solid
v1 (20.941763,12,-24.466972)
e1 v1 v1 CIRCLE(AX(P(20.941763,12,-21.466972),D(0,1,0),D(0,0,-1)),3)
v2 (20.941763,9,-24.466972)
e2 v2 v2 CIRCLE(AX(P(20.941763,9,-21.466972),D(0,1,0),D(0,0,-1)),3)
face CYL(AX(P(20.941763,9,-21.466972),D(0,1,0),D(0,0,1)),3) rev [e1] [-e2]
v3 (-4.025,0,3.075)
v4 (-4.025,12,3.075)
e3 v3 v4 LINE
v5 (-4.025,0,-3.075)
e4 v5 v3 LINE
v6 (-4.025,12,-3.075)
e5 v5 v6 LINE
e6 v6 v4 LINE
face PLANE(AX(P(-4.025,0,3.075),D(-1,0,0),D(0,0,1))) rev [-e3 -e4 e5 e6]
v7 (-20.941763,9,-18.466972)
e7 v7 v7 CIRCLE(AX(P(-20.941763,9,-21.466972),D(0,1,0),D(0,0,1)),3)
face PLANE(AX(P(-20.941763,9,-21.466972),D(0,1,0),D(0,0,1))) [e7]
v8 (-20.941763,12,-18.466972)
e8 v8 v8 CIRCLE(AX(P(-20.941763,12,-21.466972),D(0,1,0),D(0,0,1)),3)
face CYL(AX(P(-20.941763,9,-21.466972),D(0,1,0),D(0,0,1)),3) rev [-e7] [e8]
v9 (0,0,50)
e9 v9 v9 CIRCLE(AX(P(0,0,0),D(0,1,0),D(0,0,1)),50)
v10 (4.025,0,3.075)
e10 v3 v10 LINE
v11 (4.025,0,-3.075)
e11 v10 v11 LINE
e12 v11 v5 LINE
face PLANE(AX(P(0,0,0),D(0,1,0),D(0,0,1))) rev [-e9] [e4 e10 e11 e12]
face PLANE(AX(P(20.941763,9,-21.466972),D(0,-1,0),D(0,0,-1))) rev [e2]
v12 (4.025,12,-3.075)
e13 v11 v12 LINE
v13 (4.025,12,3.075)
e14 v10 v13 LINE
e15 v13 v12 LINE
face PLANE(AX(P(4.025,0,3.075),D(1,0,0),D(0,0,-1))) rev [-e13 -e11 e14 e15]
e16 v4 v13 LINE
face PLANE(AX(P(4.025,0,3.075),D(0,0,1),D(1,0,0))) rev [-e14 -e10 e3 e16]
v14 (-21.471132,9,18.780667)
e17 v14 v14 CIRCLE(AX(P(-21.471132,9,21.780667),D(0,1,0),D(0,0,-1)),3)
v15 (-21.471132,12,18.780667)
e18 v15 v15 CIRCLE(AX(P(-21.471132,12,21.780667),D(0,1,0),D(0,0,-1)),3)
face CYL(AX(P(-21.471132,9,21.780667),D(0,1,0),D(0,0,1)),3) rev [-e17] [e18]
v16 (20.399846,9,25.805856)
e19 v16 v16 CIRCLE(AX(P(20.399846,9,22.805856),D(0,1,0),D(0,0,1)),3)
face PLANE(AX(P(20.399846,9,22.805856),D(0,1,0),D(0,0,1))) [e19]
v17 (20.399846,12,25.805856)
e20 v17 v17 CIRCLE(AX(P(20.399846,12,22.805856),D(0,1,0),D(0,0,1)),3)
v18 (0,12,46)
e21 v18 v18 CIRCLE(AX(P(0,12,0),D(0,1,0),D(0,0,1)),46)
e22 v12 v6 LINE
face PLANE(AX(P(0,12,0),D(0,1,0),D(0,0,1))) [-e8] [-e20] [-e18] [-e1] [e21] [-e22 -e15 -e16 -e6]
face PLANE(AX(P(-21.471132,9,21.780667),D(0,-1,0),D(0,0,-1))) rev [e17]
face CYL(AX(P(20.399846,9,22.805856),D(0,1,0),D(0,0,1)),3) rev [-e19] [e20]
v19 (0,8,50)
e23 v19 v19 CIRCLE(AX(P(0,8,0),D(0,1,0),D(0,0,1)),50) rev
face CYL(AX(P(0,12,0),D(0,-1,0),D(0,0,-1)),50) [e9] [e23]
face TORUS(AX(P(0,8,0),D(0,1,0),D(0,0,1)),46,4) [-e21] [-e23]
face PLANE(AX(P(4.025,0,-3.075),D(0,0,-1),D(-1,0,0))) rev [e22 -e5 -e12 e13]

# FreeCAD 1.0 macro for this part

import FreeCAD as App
import Part
import Sketcher

V = App.Vector


def edges_at(feature, points):
    """Names of the edges that pass closest to the given points."""
    edges = feature.Shape.Edges
    near = lambda p: min(range(len(edges)), key=lambda i: edges[i].distToShape(Part.Vertex(*p))[0])
    return sorted({f"Edge{near(p) + 1}" for p in points})


def add_polygon(sketch, points):
    """Adds a closed chain of lines whose ends are joined by coincident constraints."""
    first, n = sketch.GeometryCount, len(points)
    for a, b in zip(points, points[1:] + points[:1]):
        sketch.addGeometry(Part.LineSegment(App.Vector(*a, 0), App.Vector(*b, 0)), False)
    for i in range(n):
        sketch.addConstraint(Sketcher.Constraint("Coincident", first + i, 2, first + (i + 1) % n, 1))

doc = App.newDocument("Part")
params = doc.addObject("Spreadsheet::Sheet", "Params")
for row, (alias, value) in enumerate([
    ("sketch1_diameter", "100 mm"),
    ("pad1_length", "12 mm"),
    ("fillet_radius", "4 mm"),
    ("sketch2_diameter", "6 mm"),
    ("pocket1_length", "3 mm"),
    ("sketch3_width", "8.05 mm"),
    ("sketch3_height", "6.15 mm"),
], start=1):
    params.set(f"A{row}", alias)
    params.set(f"B{row}", "=" + value)
    params.setAlias(f"B{row}", alias)

body = doc.addObject("PartDesign::Body", "Body")

sketch1 = doc.addObject("Sketcher::SketchObject", "Sketch")
body.addObject(sketch1)
sketch1.AttachmentSupport = (doc.XZ_Plane, [""])
sketch1.MapMode = "FlatFace"
sketch1.addGeometry(Part.Circle(V(0, 0, 0), V(0, 0, 1), 50), False)
sketch1.addConstraint(Sketcher.Constraint("Coincident", 0, 3, -1, 1))
sketch1.addConstraint(Sketcher.Constraint("Diameter", 0, 100.0))
sketch1.setExpression("Constraints[1]", "Params.sketch1_diameter")
pad1 = doc.addObject("PartDesign::Pad", "Pad")
body.addObject(pad1)
pad1.Profile = sketch1
pad1.setExpression("Length", "Params.pad1_length")
pad1.Reversed = True
doc.recompute()

fillet = doc.addObject("PartDesign::Fillet", "Fillet")
body.addObject(fillet)
fillet.Base = (pad1, edges_at(pad1, [(0, 12, -50)]))
fillet.setExpression("Radius", "Params.fillet_radius")

sketch2 = doc.addObject("Sketcher::SketchObject", "Sketch001")
body.addObject(sketch2)
sketch2.AttachmentSupport = (doc.XZ_Plane, [""])
sketch2.MapMode = "FlatFace"
sketch2.AttachmentOffset = App.Placement(V(0, 0, -12), App.Rotation())
sketch2.addGeometry(Part.Circle(V(-20.9, -21.5, 0), V(0, 0, 1), 3), False)
sketch2.addGeometry(Part.Circle(V(20.9, -21.5, 0), V(0, 0, 1), 3), False)
sketch2.addGeometry(Part.Circle(V(20.4, 22.8, 0), V(0, 0, 1), 3), False)
sketch2.addGeometry(Part.Circle(V(-21.5, 21.8, 0), V(0, 0, 1), 3), False)
sketch2.addConstraint(Sketcher.Constraint("Equal", 0, 1))
sketch2.addConstraint(Sketcher.Constraint("Equal", 1, 2))
sketch2.addConstraint(Sketcher.Constraint("Equal", 2, 3))
sketch2.addConstraint(Sketcher.Constraint("Symmetric", 0, 3, 1, 3, -2))
sketch2.addConstraint(Sketcher.Constraint("Diameter", 0, 6.0))
sketch2.addConstraint(Sketcher.Constraint("DistanceY", 0, 3, -1, 1, 21.466972))
sketch2.addConstraint(Sketcher.Constraint("DistanceX", 0, 3, 2, 3, 41.341609))
sketch2.addConstraint(Sketcher.Constraint("DistanceX", 3, 3, 2, 3, 41.870978))
sketch2.addConstraint(Sketcher.Constraint("DistanceY", 3, 3, 2, 3, 1.025189))
sketch2.addConstraint(Sketcher.Constraint("DistanceY", 0, 3, 3, 3, 43.247638))
sketch2.addConstraint(Sketcher.Constraint("DistanceX", 0, 3, -1, 1, 20.941763))
sketch2.setExpression("Constraints[4]", "Params.sketch2_diameter")
pocket1 = doc.addObject("PartDesign::Pocket", "Pocket")
body.addObject(pocket1)
pocket1.Profile = sketch2
pocket1.setExpression("Length", "Params.pocket1_length")
pocket1.Reversed = True

sketch3 = doc.addObject("Sketcher::SketchObject", "Sketch002")
body.addObject(sketch3)
sketch3.AttachmentSupport = (doc.XZ_Plane, [""])
sketch3.MapMode = "FlatFace"
sketch3.AttachmentOffset = App.Placement(V(0, 0, -12), App.Rotation())
add_polygon(sketch3, [(-4, -3), (-4, 3), (4, 3), (4, -3)])
sketch3.addConstraint(Sketcher.Constraint("Vertical", 0))
sketch3.addConstraint(Sketcher.Constraint("Horizontal", 1))
sketch3.addConstraint(Sketcher.Constraint("Vertical", 2))
sketch3.addConstraint(Sketcher.Constraint("Horizontal", 3))
sketch3.addConstraint(Sketcher.Constraint("Symmetric", 0, 2, 2, 2, -1, 1))
sketch3.addConstraint(Sketcher.Constraint("DistanceX", 1, 1, 1, 2, 8.05))
sketch3.addConstraint(Sketcher.Constraint("DistanceY", 0, 1, 0, 2, 6.15))
sketch3.setExpression("Constraints[9]", "Params.sketch3_width")
sketch3.setExpression("Constraints[10]", "Params.sketch3_height")
pocket2 = doc.addObject("PartDesign::Pocket", "Pocket001")
body.addObject(pocket2)
pocket2.Profile = sketch3
pocket2.Type = "ThroughAll"
pocket2.Reversed = True

doc.recompute()
